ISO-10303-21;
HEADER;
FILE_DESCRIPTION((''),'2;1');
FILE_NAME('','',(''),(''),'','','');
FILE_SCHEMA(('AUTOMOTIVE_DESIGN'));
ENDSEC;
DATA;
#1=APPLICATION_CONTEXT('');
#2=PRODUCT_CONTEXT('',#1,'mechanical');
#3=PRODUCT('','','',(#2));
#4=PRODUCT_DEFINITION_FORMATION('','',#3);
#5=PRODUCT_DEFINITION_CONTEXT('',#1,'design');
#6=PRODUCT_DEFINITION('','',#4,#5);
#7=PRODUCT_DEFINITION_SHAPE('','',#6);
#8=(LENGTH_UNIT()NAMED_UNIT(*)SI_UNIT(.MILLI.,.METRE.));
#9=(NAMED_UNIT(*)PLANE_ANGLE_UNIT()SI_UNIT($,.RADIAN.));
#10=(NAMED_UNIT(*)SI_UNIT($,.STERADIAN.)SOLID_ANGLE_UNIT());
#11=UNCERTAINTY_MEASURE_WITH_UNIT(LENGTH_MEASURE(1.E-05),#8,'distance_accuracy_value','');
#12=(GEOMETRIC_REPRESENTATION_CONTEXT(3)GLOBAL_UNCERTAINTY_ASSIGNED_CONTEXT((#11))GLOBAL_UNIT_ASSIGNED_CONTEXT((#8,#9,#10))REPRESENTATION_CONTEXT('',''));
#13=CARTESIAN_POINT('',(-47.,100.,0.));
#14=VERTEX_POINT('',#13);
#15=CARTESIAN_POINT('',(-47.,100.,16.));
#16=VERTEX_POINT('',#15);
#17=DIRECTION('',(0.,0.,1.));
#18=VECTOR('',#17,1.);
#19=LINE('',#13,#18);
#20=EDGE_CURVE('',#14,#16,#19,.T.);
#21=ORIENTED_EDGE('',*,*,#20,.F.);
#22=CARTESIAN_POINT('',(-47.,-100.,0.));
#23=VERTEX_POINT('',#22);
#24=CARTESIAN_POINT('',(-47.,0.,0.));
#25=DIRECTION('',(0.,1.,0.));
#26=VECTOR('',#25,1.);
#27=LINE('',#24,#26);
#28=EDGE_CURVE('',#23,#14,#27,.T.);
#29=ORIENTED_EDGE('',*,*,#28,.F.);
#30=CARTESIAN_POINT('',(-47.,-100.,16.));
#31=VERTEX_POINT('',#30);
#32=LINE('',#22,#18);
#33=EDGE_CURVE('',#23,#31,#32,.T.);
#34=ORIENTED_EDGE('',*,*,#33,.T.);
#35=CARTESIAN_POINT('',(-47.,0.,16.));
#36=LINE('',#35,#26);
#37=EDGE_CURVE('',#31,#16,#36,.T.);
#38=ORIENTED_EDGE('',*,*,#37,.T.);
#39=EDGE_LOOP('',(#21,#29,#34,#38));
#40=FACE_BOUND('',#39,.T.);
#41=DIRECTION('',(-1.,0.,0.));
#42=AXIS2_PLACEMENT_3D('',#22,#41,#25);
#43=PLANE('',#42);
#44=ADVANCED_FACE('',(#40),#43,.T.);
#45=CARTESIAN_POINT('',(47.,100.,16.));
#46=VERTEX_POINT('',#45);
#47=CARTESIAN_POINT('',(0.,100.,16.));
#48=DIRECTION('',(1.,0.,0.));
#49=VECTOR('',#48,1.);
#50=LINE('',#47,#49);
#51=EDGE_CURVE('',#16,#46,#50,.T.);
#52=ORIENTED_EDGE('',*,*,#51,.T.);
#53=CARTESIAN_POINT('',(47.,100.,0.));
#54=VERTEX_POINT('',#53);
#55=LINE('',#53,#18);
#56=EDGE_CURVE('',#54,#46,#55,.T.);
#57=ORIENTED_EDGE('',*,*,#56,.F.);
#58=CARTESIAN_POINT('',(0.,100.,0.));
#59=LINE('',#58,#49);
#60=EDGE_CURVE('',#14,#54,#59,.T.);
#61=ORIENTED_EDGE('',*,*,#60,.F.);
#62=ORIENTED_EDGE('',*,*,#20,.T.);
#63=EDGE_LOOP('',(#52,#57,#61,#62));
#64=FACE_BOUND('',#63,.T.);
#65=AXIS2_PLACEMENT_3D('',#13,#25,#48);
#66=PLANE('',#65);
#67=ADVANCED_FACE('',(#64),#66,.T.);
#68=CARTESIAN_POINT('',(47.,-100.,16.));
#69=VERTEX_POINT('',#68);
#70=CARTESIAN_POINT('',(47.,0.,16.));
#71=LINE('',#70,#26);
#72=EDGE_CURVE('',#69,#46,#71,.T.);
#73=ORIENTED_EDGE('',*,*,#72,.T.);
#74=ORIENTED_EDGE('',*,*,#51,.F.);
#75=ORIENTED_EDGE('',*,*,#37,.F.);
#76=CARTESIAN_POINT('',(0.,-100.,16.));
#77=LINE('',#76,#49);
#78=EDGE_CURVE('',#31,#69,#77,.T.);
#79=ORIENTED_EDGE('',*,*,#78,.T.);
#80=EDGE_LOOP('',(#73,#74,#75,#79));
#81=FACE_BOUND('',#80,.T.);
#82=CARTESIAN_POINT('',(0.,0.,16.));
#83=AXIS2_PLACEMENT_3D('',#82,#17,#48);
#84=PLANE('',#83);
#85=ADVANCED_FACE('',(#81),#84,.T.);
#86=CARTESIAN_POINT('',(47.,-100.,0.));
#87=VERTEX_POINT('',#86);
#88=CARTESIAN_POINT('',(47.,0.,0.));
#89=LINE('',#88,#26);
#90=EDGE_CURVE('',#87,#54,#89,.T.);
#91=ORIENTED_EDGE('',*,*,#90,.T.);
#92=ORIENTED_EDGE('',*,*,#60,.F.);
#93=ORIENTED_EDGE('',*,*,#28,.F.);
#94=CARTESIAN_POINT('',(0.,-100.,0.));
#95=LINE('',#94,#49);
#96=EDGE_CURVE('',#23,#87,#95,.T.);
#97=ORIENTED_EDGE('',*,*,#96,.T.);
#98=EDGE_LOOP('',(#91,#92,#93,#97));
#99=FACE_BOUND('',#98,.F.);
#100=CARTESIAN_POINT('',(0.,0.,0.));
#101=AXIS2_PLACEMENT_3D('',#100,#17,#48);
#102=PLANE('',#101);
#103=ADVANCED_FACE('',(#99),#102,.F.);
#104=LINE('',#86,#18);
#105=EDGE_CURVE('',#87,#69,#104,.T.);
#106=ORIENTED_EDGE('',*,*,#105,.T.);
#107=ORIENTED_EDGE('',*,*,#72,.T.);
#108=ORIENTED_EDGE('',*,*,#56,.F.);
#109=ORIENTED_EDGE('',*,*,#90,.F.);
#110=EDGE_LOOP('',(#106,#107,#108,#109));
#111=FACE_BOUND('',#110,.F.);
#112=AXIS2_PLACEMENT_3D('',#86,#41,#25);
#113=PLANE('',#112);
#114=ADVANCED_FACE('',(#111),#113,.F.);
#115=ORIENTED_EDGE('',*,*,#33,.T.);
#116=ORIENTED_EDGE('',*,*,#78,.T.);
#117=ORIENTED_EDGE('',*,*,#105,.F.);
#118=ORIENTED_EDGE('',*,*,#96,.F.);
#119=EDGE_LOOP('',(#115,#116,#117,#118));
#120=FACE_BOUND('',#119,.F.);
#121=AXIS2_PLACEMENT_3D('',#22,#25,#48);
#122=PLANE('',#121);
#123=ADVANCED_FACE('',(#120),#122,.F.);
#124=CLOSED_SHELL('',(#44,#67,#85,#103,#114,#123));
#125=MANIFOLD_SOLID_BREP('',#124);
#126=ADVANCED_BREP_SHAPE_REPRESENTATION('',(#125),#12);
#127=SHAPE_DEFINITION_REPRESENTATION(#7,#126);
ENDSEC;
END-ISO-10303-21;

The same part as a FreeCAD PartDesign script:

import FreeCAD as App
import Part
import Sketcher

doc = App.newDocument("Part")
params = doc.addObject("Spreadsheet::Sheet", "Params")
for row, (alias, value) in enumerate([
    ("sketch1_width", "94 mm"),
    ("sketch1_height", "200 mm"),
    ("pad1_length", "16 mm"),
], start=1):
    params.set(f"A{row}", alias)
    params.set(f"B{row}", "=" + value)
    params.setAlias(f"B{row}", alias)

body = doc.addObject("PartDesign::Body", "Body")

# Sketch on XY plane
sketch1 = body.newObject("Sketcher::SketchObject", "Sketch")
sketch1.AttachmentSupport = (doc.getObject("XY_Plane"), [""])
sketch1.MapMode = "FlatFace"
sketch1.addGeometry([
    Part.LineSegment(App.Vector(-47, 100, 0), App.Vector(-47, -100, 0)),
    Part.LineSegment(App.Vector(-47, -100, 0), App.Vector(47, -100, 0)),
    Part.LineSegment(App.Vector(47, -100, 0), App.Vector(47, 100, 0)),
    Part.LineSegment(App.Vector(47, 100, 0), App.Vector(-47, 100, 0)),
], False)
sketch1.addConstraint([
    Sketcher.Constraint("Coincident", 0, 2, 1, 1),
    Sketcher.Constraint("Coincident", 1, 2, 2, 1),
    Sketcher.Constraint("Coincident", 2, 2, 3, 1),
    Sketcher.Constraint("Coincident", 3, 2, 0, 1),
    Sketcher.Constraint("Vertical", 0),
    Sketcher.Constraint("Horizontal", 1),
    Sketcher.Constraint("Vertical", 2),
    Sketcher.Constraint("Horizontal", 3),
    Sketcher.Constraint("Symmetric", 0, 2, 2, 2, -1, 1),
    Sketcher.Constraint("DistanceX", 1, 1, 1, 2, 94.0),
    Sketcher.Constraint("DistanceY", 0, 2, 0, 1, 200.0),
])
sketch1.setExpression("Constraints[9]", "Params.sketch1_width")
sketch1.setExpression("Constraints[10]", "Params.sketch1_height")
pad1 = body.newObject("PartDesign::Pad", "Pad")
pad1.Profile = sketch1
pad1.setExpression("Length", "Params.pad1_length")

doc.recompute()
